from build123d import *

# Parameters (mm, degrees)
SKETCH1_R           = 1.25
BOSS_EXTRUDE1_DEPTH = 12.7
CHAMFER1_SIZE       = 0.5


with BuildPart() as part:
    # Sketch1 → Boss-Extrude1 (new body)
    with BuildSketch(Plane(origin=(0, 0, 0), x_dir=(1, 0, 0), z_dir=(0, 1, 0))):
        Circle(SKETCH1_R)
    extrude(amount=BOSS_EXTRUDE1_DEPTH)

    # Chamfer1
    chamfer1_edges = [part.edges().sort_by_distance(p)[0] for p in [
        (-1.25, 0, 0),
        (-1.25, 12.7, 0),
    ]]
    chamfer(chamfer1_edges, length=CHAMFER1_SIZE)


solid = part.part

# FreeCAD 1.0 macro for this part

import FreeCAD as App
import Part
import Sketcher
from FreeCAD import Vector
Q = App.Units.Quantity


def edges_at(feature, points):
    """Names of the edges that pass closest to the given points."""
    edges = feature.Shape.Edges
    near = lambda p: min(range(len(edges)), key=lambda i: edges[i].distToShape(Part.Vertex(*p))[0])
    return sorted({f"Edge{near(p) + 1}" for p in points})

doc = App.newDocument("Part")
body = doc.addObject("PartDesign::Body", "Body")

# Sketch on XZ plane
sketch1 = body.newObject("Sketcher::SketchObject", "Sketch")
sketch1.AttachmentSupport = (doc.getObject("XZ_Plane"), [""])
sketch1.MapMode = "FlatFace"
sketch1.addGeometry(Part.Circle(Vector(0, 0, 0), Vector(0, 0, 1), 1.2), False)
sketch1.addConstraint(Sketcher.Constraint("Coincident", 0, 3, -1, 1))
sketch1.addConstraint(Sketcher.Constraint("Diameter", 0, Q("2.5 mm")))
pad1 = body.newObject("PartDesign::Pad", "Pad")
pad1.Profile = sketch1
pad1.Length = 12.7
pad1.Reversed = True
doc.recompute()

chamfer = body.newObject("PartDesign::Chamfer", "Chamfer")
chamfer.Base = (pad1, edges_at(pad1, [(-1.25, 0, 0), (-1.25, 12.7, 0)]))
chamfer.Size = 0.5

doc.recompute()
